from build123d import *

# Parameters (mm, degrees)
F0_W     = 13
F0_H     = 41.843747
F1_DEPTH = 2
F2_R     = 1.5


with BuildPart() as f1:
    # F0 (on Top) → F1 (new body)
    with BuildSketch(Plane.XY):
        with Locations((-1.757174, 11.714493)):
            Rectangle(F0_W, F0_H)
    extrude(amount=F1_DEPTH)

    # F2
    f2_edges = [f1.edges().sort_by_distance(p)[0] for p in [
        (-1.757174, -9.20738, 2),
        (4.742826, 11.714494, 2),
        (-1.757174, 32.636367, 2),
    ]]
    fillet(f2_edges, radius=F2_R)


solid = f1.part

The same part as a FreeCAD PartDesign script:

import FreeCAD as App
import Part
import Sketcher

V = App.Vector


def edges_at(feature, points):
    """Names of the edges that pass closest to the given points."""
    edges = feature.Shape.Edges
    near = lambda p: min(range(len(edges)), key=lambda i: edges[i].distToShape(Part.Vertex(*p))[0])
    return sorted({f"Edge{near(p) + 1}" for p in points})


def add_polygon(sketch, points):
    """Adds a closed chain of lines whose ends are joined by coincident constraints."""
    first, n = sketch.GeometryCount, len(points)
    for a, b in zip(points, points[1:] + points[:1]):
        sketch.addGeometry(Part.LineSegment(App.Vector(*a, 0), App.Vector(*b, 0)), False)
    for i in range(n):
        sketch.addConstraint(Sketcher.Constraint("Coincident", first + i, 2, first + (i + 1) % n, 1))

doc = App.newDocument("Part")
body = doc.addObject("PartDesign::Body", "Body")

# Sketch on XY plane
sketch1 = body.newObject("Sketcher::SketchObject", "Sketch")
sketch1.AttachmentSupport = (doc.getObject("XY_Plane"), [""])
sketch1.MapMode = "FlatFace"
add_polygon(sketch1, [(-8.257174, 32.636367), (-8.257174, -9.20738), (4.742826, -9.20738), (4.742826, 32.636367)])  # lines 0-3
sketch1.addConstraint(Sketcher.Constraint("Vertical", 0))
sketch1.addConstraint(Sketcher.Constraint("Horizontal", 1))
sketch1.addConstraint(Sketcher.Constraint("Vertical", 2))
sketch1.addConstraint(Sketcher.Constraint("Horizontal", 3))
sketch1.addConstraint(Sketcher.Constraint("DistanceX", 1, 1, 1, 2, 13.0))
sketch1.addConstraint(Sketcher.Constraint("DistanceY", 0, 2, 0, 1, 41.843747))
sketch1.addConstraint(Sketcher.Constraint("DistanceY", 0, 2, -1, 1, 9.20738))
sketch1.addConstraint(Sketcher.Constraint("DistanceX", 0, 2, -1, 1, 8.257174))
pad1 = body.newObject("PartDesign::Pad", "Pad")
pad1.Profile = sketch1
pad1.Length = 2
doc.recompute()

fillet = body.newObject("PartDesign::Fillet", "Fillet")
fillet.Base = (pad1, edges_at(pad1, [(-1.757, -9.207, 2), (4.743, 11.714, 2), (-1.757, 32.636, 2)]))
fillet.Radius = 1.5

doc.recompute()
